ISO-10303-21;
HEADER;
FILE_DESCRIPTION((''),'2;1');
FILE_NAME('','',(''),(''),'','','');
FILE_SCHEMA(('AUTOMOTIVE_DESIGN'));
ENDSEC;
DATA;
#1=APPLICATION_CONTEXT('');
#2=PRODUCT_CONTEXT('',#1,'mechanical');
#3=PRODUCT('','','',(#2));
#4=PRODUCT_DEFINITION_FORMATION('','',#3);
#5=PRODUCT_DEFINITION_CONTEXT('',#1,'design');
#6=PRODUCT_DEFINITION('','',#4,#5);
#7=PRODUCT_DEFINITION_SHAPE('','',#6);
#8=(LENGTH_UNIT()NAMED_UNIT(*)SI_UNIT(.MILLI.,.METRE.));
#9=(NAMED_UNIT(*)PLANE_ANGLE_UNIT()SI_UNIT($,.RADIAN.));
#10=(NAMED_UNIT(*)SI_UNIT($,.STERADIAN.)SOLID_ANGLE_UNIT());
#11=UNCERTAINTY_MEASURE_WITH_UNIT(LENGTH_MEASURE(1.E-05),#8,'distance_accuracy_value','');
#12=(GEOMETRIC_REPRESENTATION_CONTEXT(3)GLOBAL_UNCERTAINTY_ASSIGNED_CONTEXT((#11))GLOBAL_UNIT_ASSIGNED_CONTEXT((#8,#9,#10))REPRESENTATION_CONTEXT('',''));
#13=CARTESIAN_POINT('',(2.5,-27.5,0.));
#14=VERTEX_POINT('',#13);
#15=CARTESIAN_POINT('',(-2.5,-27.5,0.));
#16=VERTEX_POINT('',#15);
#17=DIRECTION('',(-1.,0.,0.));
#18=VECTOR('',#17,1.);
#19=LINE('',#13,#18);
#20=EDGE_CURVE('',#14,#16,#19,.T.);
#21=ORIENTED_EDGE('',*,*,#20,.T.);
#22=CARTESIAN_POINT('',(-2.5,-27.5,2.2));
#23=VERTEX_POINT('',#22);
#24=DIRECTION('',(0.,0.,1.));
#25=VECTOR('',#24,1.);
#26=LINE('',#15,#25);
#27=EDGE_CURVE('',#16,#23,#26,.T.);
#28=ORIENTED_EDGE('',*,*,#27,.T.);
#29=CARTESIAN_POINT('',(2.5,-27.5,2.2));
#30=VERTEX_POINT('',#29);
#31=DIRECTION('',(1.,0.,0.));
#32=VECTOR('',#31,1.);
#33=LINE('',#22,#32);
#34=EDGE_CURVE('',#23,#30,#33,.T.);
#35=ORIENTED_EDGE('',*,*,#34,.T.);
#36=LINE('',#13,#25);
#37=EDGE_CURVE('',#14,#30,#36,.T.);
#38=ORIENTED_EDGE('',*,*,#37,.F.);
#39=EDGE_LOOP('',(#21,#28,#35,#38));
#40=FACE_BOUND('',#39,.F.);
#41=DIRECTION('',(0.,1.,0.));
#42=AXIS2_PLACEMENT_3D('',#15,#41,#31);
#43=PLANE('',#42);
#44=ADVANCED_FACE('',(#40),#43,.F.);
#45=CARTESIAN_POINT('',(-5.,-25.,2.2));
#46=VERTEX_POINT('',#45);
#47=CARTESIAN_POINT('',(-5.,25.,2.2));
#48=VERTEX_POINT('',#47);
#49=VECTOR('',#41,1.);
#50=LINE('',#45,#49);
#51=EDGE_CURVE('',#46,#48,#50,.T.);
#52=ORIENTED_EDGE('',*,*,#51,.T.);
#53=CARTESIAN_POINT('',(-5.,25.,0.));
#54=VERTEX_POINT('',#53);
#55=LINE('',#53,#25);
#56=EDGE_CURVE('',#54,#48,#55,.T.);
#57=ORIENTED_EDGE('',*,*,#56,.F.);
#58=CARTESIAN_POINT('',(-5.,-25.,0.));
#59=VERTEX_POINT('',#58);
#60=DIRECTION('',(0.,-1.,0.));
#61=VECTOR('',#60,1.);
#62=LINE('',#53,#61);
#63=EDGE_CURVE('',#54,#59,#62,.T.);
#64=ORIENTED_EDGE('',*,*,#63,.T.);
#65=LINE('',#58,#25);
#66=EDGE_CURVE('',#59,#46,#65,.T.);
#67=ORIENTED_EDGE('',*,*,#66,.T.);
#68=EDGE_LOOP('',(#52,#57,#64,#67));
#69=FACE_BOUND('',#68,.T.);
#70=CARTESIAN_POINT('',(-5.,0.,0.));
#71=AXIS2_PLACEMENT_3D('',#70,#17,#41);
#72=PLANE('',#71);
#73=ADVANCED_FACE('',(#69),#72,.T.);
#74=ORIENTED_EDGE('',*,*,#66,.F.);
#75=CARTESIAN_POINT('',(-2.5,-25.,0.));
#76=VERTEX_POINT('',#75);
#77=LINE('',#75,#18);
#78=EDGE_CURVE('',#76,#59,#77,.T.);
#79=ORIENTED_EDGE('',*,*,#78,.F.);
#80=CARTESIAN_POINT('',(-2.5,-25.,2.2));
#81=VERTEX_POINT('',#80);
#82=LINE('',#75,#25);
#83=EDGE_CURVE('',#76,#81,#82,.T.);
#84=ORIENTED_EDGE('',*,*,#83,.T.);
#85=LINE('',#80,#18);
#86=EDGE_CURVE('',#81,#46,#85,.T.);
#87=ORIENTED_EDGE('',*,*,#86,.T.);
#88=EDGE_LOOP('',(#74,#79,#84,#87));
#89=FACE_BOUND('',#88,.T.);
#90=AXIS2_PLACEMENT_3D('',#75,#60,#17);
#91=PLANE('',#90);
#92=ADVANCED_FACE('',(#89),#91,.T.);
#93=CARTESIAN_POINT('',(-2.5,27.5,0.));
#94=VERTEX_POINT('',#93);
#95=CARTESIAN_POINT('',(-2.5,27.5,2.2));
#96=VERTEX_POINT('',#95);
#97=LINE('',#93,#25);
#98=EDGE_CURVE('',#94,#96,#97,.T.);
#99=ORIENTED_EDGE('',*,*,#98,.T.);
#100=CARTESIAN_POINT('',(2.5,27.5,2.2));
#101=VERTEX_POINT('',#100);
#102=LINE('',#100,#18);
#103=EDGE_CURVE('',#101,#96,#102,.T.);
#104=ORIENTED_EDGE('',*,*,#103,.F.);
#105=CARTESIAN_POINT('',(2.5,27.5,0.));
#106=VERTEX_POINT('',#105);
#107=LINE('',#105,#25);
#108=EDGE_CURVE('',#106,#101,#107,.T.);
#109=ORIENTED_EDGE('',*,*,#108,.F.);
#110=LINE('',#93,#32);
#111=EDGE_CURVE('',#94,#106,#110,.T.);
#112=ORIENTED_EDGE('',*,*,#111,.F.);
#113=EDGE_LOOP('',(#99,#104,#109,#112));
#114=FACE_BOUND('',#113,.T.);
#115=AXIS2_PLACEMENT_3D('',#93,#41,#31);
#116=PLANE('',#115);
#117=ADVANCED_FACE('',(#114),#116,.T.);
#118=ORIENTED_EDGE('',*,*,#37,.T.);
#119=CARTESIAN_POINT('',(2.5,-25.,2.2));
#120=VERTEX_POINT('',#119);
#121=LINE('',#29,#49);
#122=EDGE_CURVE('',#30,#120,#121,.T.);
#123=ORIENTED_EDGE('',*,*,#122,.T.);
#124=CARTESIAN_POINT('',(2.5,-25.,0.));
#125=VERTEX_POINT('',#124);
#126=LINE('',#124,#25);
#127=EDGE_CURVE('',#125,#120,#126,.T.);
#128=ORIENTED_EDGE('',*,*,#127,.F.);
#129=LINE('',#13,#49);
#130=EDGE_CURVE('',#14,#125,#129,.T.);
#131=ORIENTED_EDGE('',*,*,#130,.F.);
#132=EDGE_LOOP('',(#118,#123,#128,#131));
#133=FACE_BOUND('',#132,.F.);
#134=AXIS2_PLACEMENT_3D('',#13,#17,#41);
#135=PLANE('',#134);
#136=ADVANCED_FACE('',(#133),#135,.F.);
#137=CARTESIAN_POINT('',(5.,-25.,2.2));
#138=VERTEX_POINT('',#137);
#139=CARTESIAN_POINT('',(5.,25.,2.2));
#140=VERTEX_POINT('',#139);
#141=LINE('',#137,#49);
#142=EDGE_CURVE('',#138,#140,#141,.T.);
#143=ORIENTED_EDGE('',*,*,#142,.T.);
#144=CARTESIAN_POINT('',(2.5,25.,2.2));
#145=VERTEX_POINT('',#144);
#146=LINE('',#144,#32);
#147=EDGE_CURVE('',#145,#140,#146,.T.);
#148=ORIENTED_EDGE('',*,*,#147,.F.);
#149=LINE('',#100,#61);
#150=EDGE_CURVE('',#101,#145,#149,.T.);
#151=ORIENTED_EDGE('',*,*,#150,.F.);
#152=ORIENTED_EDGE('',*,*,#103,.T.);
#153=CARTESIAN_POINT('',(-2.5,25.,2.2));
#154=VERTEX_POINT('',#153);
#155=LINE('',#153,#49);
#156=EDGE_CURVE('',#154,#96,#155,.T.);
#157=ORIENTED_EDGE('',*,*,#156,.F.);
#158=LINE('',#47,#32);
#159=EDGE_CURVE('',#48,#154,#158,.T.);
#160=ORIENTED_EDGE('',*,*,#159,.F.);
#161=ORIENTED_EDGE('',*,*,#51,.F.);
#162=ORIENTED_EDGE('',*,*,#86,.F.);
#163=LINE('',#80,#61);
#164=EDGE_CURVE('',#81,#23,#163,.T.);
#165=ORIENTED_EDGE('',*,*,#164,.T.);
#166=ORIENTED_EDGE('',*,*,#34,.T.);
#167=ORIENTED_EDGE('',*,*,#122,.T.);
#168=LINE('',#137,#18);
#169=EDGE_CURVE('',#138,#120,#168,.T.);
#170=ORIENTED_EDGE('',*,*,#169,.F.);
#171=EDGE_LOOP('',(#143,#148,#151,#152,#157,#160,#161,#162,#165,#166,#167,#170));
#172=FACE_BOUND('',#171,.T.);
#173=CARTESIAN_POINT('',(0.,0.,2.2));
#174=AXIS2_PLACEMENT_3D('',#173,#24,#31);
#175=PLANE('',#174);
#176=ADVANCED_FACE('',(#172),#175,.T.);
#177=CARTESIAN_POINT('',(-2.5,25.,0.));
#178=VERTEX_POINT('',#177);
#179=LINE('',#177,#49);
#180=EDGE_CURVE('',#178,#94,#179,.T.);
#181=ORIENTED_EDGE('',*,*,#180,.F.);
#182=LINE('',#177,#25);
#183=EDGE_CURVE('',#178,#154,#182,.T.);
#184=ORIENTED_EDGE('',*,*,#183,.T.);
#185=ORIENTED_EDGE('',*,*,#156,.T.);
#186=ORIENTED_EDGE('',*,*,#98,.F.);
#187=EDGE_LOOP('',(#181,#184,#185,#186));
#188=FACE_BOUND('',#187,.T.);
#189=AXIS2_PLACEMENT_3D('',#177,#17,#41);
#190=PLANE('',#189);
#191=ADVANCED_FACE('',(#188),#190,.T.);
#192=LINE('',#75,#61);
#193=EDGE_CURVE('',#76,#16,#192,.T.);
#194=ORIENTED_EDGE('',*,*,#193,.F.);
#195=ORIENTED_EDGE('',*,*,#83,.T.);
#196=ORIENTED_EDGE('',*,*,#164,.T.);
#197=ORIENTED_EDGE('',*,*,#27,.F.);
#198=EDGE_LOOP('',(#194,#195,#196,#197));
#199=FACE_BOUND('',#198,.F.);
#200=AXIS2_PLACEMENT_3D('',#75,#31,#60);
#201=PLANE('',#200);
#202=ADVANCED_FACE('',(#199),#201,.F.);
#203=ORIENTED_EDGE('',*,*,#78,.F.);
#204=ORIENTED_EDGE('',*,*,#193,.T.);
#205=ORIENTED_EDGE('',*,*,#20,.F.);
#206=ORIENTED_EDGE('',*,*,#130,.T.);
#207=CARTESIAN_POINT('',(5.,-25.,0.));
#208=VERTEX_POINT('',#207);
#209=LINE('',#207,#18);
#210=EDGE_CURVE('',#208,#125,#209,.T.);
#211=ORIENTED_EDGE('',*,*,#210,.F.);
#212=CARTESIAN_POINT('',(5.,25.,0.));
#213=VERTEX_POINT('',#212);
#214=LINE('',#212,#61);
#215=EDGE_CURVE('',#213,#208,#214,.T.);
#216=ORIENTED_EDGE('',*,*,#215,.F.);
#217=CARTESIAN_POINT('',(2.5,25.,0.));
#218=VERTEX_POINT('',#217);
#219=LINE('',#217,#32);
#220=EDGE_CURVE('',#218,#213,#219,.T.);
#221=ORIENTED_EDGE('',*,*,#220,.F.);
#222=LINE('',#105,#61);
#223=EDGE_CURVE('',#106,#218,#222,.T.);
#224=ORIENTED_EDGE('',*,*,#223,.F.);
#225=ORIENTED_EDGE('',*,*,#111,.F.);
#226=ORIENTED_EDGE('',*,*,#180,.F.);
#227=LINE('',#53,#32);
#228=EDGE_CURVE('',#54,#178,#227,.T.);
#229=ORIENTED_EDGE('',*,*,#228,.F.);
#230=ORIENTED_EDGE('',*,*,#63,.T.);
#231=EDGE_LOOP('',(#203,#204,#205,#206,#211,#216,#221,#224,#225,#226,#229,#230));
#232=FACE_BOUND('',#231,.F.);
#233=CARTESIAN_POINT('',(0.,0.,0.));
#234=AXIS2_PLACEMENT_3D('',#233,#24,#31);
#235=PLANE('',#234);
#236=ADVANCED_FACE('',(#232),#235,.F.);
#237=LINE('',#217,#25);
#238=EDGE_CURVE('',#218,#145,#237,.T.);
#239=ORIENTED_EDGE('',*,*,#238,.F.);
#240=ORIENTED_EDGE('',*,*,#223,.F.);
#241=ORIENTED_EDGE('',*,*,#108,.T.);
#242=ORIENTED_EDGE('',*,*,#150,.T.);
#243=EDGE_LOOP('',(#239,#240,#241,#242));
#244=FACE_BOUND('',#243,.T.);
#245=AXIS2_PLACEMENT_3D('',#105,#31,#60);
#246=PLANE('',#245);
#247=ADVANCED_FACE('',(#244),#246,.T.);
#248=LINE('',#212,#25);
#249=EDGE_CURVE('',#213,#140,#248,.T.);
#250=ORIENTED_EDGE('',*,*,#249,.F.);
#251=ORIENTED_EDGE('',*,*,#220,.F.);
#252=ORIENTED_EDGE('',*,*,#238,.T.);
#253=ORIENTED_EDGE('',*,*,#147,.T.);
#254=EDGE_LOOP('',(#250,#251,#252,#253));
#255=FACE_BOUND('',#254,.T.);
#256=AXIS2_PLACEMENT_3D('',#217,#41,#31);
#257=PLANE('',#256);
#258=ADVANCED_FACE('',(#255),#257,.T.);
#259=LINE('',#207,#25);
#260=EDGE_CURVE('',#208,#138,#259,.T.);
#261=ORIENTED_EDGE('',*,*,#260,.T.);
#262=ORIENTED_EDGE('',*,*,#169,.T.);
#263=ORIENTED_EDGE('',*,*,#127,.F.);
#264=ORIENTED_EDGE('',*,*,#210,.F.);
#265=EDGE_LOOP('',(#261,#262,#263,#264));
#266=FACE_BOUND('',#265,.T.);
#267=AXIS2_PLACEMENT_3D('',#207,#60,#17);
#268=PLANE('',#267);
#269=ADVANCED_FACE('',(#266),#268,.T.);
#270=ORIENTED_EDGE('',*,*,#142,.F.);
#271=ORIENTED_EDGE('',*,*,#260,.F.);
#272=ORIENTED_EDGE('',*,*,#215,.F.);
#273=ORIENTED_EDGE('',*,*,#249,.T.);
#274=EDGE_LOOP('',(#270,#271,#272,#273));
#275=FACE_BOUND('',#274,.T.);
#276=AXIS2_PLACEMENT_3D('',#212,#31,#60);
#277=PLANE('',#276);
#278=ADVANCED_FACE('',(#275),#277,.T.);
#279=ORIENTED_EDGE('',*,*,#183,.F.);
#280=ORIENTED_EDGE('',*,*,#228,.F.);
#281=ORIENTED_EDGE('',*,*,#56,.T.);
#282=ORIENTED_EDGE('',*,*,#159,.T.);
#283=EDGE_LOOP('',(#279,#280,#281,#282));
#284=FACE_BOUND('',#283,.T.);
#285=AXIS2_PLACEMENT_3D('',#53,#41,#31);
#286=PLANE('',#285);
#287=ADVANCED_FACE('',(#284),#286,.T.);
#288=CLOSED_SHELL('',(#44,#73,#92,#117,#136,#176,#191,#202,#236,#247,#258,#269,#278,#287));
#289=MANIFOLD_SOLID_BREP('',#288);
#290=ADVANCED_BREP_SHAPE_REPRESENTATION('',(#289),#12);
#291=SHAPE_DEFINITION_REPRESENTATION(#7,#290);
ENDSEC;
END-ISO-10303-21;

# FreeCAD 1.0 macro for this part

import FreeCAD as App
import Part
import Sketcher
Q = App.Units.Quantity


def add_polygon(sketch, points):
    """Adds a closed chain of lines whose ends are joined by coincident constraints."""
    first, n = sketch.GeometryCount, len(points)
    for a, b in zip(points, points[1:] + points[:1]):
        sketch.addGeometry(Part.LineSegment(App.Vector(*a, 0), App.Vector(*b, 0)), False)
    for i in range(n):
        sketch.addConstraint(Sketcher.Constraint("Coincident", first + i, 2, first + (i + 1) % n, 1))

doc = App.newDocument("Part")
body = doc.addObject("PartDesign::Body", "Body")

# Sketch on XY plane
sketch1 = body.newObject("Sketcher::SketchObject", "Sketch")
sketch1.AttachmentSupport = (doc.getObject("XY_Plane"), [""])
sketch1.MapMode = "FlatFace"
add_polygon(sketch1, [(-5, 25), (-5, -25), (-2.5, -25), (-2.5, -27.5), (2.5, -27.5), (2.5, -25), (5, -25), (5, 25), (2.5, 25), (2.5, 27.5), (-2.5, 27.5), (-2.5, 25)])  # lines 0-11
sketch1.addConstraint(Sketcher.Constraint("Vertical", 0))
sketch1.addConstraint(Sketcher.Constraint("Horizontal", 1))
sketch1.addConstraint(Sketcher.Constraint("Vertical", 2))
sketch1.addConstraint(Sketcher.Constraint("Horizontal", 3))
sketch1.addConstraint(Sketcher.Constraint("Vertical", 4))
sketch1.addConstraint(Sketcher.Constraint("Horizontal", 5))
sketch1.addConstraint(Sketcher.Constraint("Vertical", 6))
sketch1.addConstraint(Sketcher.Constraint("Horizontal", 7))
sketch1.addConstraint(Sketcher.Constraint("Vertical", 8))
sketch1.addConstraint(Sketcher.Constraint("Horizontal", 9))
sketch1.addConstraint(Sketcher.Constraint("Vertical", 10))
sketch1.addConstraint(Sketcher.Constraint("Horizontal", 11))
sketch1.addConstraint(Sketcher.Constraint("Symmetric", 0, 2, 6, 2, -1, 1))
sketch1.addConstraint(Sketcher.Constraint("Symmetric", 2, 2, 8, 2, -1, 1))
sketch1.addConstraint(Sketcher.Constraint("Symmetric", 4, 2, 10, 2, -1, 1))
sketch1.addConstraint(Sketcher.Constraint("Symmetric", 1, 2, 4, 2, -2))
sketch1.addConstraint(Sketcher.Constraint("Equal", 11, 2))
sketch1.addConstraint(Sketcher.Constraint("DistanceX", 3, 1, 3, 2, Q("5 mm")))
sketch1.addConstraint(Sketcher.Constraint("DistanceY", 0, 2, 0, 1, Q("50 mm")))
sketch1.addConstraint(Sketcher.Constraint("DistanceX", 1, 1, 1, 2, Q("2.5 mm")))
pad1 = body.newObject("PartDesign::Pad", "Pad")
pad1.Profile = sketch1
pad1.Length = 2.2

doc.recompute()
